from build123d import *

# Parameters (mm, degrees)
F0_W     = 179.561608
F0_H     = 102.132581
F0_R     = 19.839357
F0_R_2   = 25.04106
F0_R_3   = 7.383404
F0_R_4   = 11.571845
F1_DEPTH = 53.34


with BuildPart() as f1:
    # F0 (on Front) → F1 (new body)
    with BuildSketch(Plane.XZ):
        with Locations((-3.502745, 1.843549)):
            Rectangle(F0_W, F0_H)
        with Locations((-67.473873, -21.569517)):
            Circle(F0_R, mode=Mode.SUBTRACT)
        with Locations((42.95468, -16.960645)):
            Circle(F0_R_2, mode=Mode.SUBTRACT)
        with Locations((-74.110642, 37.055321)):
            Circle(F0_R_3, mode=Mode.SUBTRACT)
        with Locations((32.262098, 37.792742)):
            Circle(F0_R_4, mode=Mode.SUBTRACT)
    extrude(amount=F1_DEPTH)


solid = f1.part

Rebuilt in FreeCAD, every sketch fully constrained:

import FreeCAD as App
import Part
import Sketcher

V = App.Vector
Q = App.Units.Quantity

doc = App.newDocument("Part")
body = doc.addObject("PartDesign::Body", "Body")

# Sketch on XZ plane
sketch1 = doc.addObject("Sketcher::SketchObject", "Sketch")
body.addObject(sketch1)
sketch1.AttachmentSupport = (doc.XZ_Plane, [""])
sketch1.MapMode = "FlatFace"
sketch1.addGeometry(Part.LineSegment(V(-93, 53, 0), V(-93, -49, 0)), False)
sketch1.addGeometry(Part.LineSegment(V(-93, -49, 0), V(86, -49, 0)), False)
sketch1.addGeometry(Part.LineSegment(V(86, -49, 0), V(86, 53, 0)), False)
sketch1.addGeometry(Part.LineSegment(V(86, 53, 0), V(-93, 53, 0)), False)
sketch1.addGeometry(Part.Circle(V(-67, -22, 0), V(0, 0, 1), 20), False)
sketch1.addGeometry(Part.Circle(V(43, -17, 0), V(0, 0, 1), 25), False)
sketch1.addGeometry(Part.Circle(V(-74, 37, 0), V(0, 0, 1), 7), False)
sketch1.addGeometry(Part.Circle(V(32, 38, 0), V(0, 0, 1), 12), False)
sketch1.addConstraint(Sketcher.Constraint("Coincident", 0, 2, 1, 1))
sketch1.addConstraint(Sketcher.Constraint("Coincident", 1, 2, 2, 1))
sketch1.addConstraint(Sketcher.Constraint("Coincident", 2, 2, 3, 1))
sketch1.addConstraint(Sketcher.Constraint("Coincident", 3, 2, 0, 1))
sketch1.addConstraint(Sketcher.Constraint("Vertical", 0))
sketch1.addConstraint(Sketcher.Constraint("Horizontal", 1))
sketch1.addConstraint(Sketcher.Constraint("Vertical", 2))
sketch1.addConstraint(Sketcher.Constraint("Horizontal", 3))
sketch1.addConstraint(Sketcher.Constraint("Diameter", 5, Q("50.08212 mm")))
sketch1.addConstraint(Sketcher.Constraint("Diameter", 7, Q("23.14369 mm")))
sketch1.addConstraint(Sketcher.Constraint("Diameter", 4, Q("39.678714 mm")))
sketch1.addConstraint(Sketcher.Constraint("Diameter", 6, Q("14.766808 mm")))
sketch1.addConstraint(Sketcher.Constraint("DistanceY", 0, 2, 0, 1, Q("102.132581 mm")))
sketch1.addConstraint(Sketcher.Constraint("DistanceX", -1, 1, 7, 3, Q("32.262098 mm")))
sketch1.addConstraint(Sketcher.Constraint("DistanceX", 6, 3, 1, 2, Q("160.388701 mm")))
sketch1.addConstraint(Sketcher.Constraint("DistanceX", 1, 1, 1, 2, Q("179.561608 mm")))
sketch1.addConstraint(Sketcher.Constraint("DistanceX", -1, 1, 5, 3, Q("42.95468 mm")))
sketch1.addConstraint(Sketcher.Constraint("DistanceX", 6, 3, -1, 1, Q("74.110642 mm")))
sketch1.addConstraint(Sketcher.Constraint("DistanceY", -1, 1, 6, 3, Q("37.055321 mm")))
sketch1.addConstraint(Sketcher.Constraint("DistanceY", -1, 1, 7, 3, Q("37.792742 mm")))
sketch1.addConstraint(Sketcher.Constraint("DistanceY", 0, 2, -1, 1, Q("49.222741 mm")))
sketch1.addConstraint(Sketcher.Constraint("DistanceX", 6, 3, 4, 3, Q("6.636769 mm")))
sketch1.addConstraint(Sketcher.Constraint("DistanceY", 4, 3, 7, 3, Q("59.362259 mm")))
sketch1.addConstraint(Sketcher.Constraint("DistanceY", 5, 3, -1, 1, Q("16.960645 mm")))
pad1 = doc.addObject("PartDesign::Pad", "Pad")
body.addObject(pad1)
pad1.Profile = sketch1
pad1.Length = Q("2.1 in")

doc.recompute()
